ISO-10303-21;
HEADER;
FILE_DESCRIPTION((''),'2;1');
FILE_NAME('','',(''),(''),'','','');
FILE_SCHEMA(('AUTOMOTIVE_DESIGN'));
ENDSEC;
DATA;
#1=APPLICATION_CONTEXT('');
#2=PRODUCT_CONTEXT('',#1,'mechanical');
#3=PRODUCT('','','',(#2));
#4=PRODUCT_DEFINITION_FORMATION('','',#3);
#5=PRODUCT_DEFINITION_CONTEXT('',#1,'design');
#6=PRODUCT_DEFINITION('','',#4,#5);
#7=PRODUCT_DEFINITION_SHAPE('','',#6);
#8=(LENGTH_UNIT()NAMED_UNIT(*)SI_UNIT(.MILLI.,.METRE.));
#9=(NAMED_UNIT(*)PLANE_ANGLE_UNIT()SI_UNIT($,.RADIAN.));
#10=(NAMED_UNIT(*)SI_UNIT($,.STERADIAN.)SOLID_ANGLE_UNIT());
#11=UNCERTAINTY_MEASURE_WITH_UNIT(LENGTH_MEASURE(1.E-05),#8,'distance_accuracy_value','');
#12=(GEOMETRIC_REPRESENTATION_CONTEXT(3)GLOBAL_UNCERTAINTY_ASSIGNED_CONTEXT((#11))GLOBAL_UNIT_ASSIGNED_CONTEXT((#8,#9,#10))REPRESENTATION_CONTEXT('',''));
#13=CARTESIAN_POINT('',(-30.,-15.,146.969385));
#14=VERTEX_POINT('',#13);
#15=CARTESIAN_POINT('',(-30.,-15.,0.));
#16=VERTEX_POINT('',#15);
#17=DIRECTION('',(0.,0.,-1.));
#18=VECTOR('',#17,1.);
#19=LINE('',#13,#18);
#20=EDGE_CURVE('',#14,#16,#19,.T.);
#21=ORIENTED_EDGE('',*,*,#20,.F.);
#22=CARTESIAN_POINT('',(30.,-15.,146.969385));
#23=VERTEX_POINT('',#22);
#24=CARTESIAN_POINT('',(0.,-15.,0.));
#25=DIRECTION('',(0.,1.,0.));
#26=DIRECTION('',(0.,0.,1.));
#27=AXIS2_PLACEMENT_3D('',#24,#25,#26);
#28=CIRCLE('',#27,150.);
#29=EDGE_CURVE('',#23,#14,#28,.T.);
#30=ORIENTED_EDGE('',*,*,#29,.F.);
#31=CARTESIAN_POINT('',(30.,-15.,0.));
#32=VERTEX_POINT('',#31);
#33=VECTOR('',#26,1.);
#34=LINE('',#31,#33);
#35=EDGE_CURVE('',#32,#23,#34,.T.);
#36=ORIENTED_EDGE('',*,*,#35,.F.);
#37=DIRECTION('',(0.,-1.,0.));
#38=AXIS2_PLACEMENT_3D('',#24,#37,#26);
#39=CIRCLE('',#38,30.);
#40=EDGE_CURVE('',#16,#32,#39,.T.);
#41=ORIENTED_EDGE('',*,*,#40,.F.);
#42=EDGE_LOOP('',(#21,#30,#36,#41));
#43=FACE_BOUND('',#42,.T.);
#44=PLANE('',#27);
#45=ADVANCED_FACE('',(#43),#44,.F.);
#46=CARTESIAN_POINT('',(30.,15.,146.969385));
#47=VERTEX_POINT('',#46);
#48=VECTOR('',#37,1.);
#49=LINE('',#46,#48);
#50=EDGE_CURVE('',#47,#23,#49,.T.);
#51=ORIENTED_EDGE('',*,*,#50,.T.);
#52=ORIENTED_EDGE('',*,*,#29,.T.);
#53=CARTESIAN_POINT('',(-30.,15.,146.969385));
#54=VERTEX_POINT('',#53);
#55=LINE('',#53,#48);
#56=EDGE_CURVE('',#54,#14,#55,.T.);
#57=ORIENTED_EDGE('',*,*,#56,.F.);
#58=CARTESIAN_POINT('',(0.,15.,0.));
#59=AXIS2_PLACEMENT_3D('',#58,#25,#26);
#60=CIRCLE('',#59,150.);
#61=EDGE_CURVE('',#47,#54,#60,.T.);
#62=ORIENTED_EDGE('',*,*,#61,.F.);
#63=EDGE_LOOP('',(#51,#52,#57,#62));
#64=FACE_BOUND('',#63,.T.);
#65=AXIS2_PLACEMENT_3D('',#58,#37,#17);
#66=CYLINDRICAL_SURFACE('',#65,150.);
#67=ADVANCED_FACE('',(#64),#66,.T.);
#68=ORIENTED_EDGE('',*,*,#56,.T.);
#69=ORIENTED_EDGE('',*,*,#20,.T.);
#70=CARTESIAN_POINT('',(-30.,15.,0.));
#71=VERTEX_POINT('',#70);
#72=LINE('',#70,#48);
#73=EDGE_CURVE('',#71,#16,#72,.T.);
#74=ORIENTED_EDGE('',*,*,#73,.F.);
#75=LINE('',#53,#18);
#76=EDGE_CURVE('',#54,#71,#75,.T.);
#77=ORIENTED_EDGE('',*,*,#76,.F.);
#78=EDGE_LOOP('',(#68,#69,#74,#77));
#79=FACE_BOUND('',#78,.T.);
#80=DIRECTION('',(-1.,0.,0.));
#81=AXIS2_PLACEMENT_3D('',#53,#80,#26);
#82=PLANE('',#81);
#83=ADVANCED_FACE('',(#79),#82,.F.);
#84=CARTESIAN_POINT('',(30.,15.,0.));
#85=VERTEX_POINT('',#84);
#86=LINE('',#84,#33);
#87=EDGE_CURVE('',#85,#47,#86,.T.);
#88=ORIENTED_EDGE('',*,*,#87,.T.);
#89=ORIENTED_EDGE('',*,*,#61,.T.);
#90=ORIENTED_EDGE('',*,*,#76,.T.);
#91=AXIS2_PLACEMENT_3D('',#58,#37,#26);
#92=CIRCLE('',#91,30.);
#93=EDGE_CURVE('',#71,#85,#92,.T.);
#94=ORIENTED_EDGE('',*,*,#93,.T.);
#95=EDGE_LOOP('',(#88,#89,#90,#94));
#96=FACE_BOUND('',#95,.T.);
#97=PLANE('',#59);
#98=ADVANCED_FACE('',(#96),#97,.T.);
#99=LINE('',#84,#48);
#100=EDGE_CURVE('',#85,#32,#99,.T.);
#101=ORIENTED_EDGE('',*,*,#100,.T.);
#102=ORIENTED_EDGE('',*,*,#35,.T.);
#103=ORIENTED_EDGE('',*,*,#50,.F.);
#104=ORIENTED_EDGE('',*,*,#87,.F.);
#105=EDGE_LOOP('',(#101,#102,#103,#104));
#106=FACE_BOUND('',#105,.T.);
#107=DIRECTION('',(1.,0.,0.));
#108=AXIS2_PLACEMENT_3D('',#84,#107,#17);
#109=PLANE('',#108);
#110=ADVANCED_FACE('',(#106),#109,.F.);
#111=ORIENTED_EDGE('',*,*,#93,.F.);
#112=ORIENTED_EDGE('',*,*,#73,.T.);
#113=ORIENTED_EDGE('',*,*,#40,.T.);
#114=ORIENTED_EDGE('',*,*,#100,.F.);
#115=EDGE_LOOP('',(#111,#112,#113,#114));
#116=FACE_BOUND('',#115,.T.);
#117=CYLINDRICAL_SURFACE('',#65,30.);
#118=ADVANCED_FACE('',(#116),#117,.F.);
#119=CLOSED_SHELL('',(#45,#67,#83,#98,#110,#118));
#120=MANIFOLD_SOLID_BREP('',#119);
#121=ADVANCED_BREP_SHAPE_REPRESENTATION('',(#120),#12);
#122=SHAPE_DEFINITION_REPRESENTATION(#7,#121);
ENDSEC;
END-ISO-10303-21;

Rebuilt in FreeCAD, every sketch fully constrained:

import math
import FreeCAD as App
import Part
import Sketcher

V = App.Vector
Q = App.Units.Quantity

doc = App.newDocument("Part")
body = doc.addObject("PartDesign::Body", "Body")

# Sketch on XZ plane
sketch1 = doc.addObject("Sketcher::SketchObject", "Sketch")
body.addObject(sketch1)
sketch1.AttachmentSupport = (doc.XZ_Plane, [""])
sketch1.MapMode = "FlatFace"
sketch1.addGeometry([
    Part.LineSegment(V(-30, 146.969385, 0), V(-30, 0, 0)),
    Part.ArcOfCircle(Part.Circle(V(0, 0, 0), V(0, 0, 1), 30), math.radians(180), math.radians(360)),
    Part.LineSegment(V(30, 0, 0), V(30, 146.969385, 0)),
    Part.ArcOfCircle(Part.Circle(V(0, 0, 0), V(0, 0, 1), 150), math.radians(101.536959), math.radians(438.463041)),
], False)
sketch1.addConstraint([
    Sketcher.Constraint("Tangent", 0, 2, 1, 1),
    Sketcher.Constraint("Tangent", 1, 2, 2, 1),
    Sketcher.Constraint("Coincident", 2, 2, 3, 2),
    Sketcher.Constraint("Coincident", 3, 1, 0, 1),
    Sketcher.Constraint("Vertical", 0),
    Sketcher.Constraint("Vertical", 2),
    Sketcher.Constraint("Coincident", 1, 3, -1, 1),
    Sketcher.Constraint("Coincident", 3, 3, -1, 1),
    Sketcher.Constraint("Radius", 1, Q("30 mm")),
    Sketcher.Constraint("Radius", 3, Q("150 mm")),
])
pad1 = doc.addObject("PartDesign::Pad", "Pad")
body.addObject(pad1)
pad1.Profile = sketch1
pad1.Length = 30
pad1.Midplane = True

doc.recompute()
